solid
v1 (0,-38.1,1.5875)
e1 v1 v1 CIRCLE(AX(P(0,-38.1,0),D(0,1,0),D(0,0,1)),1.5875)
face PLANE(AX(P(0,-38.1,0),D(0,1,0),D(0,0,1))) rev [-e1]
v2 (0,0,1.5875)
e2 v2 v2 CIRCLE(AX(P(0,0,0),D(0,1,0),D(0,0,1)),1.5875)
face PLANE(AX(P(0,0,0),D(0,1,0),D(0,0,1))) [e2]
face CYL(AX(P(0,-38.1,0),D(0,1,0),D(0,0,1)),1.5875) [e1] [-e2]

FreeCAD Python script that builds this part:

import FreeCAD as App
import Part
import Sketcher

V = App.Vector
Q = App.Units.Quantity

doc = App.newDocument("Part")
params = doc.addObject("Spreadsheet::Sheet", "Params")
for row, (alias, value) in enumerate([
    ("sketch1_diameter", "0.125 in"),
    ("pad1_length", "1.5 in"),
], start=1):
    params.set(f"A{row}", alias)
    params.set(f"B{row}", "=" + value)
    params.setAlias(f"B{row}", alias)

body = doc.addObject("PartDesign::Body", "Body")

sketch1 = body.newObject("Sketcher::SketchObject", "Sketch")
sketch1.AttachmentSupport = (doc.getObject("XZ_Plane"), [""])
sketch1.MapMode = "FlatFace"
sketch1.addGeometry(Part.Circle(V(0, 0, 0), V(0, 0, 1), 1.5875), False)
sketch1.addConstraint(Sketcher.Constraint("Coincident", 0, 3, -1, 1))
sketch1.addConstraint(Sketcher.Constraint("Diameter", 0, Q("0.125 in")))
sketch1.setExpression("Constraints[1]", "Params.sketch1_diameter")
pad1 = body.newObject("PartDesign::Pad", "Pad")
pad1.Profile = sketch1
pad1.setExpression("Length", "Params.pad1_length")

doc.recompute()
